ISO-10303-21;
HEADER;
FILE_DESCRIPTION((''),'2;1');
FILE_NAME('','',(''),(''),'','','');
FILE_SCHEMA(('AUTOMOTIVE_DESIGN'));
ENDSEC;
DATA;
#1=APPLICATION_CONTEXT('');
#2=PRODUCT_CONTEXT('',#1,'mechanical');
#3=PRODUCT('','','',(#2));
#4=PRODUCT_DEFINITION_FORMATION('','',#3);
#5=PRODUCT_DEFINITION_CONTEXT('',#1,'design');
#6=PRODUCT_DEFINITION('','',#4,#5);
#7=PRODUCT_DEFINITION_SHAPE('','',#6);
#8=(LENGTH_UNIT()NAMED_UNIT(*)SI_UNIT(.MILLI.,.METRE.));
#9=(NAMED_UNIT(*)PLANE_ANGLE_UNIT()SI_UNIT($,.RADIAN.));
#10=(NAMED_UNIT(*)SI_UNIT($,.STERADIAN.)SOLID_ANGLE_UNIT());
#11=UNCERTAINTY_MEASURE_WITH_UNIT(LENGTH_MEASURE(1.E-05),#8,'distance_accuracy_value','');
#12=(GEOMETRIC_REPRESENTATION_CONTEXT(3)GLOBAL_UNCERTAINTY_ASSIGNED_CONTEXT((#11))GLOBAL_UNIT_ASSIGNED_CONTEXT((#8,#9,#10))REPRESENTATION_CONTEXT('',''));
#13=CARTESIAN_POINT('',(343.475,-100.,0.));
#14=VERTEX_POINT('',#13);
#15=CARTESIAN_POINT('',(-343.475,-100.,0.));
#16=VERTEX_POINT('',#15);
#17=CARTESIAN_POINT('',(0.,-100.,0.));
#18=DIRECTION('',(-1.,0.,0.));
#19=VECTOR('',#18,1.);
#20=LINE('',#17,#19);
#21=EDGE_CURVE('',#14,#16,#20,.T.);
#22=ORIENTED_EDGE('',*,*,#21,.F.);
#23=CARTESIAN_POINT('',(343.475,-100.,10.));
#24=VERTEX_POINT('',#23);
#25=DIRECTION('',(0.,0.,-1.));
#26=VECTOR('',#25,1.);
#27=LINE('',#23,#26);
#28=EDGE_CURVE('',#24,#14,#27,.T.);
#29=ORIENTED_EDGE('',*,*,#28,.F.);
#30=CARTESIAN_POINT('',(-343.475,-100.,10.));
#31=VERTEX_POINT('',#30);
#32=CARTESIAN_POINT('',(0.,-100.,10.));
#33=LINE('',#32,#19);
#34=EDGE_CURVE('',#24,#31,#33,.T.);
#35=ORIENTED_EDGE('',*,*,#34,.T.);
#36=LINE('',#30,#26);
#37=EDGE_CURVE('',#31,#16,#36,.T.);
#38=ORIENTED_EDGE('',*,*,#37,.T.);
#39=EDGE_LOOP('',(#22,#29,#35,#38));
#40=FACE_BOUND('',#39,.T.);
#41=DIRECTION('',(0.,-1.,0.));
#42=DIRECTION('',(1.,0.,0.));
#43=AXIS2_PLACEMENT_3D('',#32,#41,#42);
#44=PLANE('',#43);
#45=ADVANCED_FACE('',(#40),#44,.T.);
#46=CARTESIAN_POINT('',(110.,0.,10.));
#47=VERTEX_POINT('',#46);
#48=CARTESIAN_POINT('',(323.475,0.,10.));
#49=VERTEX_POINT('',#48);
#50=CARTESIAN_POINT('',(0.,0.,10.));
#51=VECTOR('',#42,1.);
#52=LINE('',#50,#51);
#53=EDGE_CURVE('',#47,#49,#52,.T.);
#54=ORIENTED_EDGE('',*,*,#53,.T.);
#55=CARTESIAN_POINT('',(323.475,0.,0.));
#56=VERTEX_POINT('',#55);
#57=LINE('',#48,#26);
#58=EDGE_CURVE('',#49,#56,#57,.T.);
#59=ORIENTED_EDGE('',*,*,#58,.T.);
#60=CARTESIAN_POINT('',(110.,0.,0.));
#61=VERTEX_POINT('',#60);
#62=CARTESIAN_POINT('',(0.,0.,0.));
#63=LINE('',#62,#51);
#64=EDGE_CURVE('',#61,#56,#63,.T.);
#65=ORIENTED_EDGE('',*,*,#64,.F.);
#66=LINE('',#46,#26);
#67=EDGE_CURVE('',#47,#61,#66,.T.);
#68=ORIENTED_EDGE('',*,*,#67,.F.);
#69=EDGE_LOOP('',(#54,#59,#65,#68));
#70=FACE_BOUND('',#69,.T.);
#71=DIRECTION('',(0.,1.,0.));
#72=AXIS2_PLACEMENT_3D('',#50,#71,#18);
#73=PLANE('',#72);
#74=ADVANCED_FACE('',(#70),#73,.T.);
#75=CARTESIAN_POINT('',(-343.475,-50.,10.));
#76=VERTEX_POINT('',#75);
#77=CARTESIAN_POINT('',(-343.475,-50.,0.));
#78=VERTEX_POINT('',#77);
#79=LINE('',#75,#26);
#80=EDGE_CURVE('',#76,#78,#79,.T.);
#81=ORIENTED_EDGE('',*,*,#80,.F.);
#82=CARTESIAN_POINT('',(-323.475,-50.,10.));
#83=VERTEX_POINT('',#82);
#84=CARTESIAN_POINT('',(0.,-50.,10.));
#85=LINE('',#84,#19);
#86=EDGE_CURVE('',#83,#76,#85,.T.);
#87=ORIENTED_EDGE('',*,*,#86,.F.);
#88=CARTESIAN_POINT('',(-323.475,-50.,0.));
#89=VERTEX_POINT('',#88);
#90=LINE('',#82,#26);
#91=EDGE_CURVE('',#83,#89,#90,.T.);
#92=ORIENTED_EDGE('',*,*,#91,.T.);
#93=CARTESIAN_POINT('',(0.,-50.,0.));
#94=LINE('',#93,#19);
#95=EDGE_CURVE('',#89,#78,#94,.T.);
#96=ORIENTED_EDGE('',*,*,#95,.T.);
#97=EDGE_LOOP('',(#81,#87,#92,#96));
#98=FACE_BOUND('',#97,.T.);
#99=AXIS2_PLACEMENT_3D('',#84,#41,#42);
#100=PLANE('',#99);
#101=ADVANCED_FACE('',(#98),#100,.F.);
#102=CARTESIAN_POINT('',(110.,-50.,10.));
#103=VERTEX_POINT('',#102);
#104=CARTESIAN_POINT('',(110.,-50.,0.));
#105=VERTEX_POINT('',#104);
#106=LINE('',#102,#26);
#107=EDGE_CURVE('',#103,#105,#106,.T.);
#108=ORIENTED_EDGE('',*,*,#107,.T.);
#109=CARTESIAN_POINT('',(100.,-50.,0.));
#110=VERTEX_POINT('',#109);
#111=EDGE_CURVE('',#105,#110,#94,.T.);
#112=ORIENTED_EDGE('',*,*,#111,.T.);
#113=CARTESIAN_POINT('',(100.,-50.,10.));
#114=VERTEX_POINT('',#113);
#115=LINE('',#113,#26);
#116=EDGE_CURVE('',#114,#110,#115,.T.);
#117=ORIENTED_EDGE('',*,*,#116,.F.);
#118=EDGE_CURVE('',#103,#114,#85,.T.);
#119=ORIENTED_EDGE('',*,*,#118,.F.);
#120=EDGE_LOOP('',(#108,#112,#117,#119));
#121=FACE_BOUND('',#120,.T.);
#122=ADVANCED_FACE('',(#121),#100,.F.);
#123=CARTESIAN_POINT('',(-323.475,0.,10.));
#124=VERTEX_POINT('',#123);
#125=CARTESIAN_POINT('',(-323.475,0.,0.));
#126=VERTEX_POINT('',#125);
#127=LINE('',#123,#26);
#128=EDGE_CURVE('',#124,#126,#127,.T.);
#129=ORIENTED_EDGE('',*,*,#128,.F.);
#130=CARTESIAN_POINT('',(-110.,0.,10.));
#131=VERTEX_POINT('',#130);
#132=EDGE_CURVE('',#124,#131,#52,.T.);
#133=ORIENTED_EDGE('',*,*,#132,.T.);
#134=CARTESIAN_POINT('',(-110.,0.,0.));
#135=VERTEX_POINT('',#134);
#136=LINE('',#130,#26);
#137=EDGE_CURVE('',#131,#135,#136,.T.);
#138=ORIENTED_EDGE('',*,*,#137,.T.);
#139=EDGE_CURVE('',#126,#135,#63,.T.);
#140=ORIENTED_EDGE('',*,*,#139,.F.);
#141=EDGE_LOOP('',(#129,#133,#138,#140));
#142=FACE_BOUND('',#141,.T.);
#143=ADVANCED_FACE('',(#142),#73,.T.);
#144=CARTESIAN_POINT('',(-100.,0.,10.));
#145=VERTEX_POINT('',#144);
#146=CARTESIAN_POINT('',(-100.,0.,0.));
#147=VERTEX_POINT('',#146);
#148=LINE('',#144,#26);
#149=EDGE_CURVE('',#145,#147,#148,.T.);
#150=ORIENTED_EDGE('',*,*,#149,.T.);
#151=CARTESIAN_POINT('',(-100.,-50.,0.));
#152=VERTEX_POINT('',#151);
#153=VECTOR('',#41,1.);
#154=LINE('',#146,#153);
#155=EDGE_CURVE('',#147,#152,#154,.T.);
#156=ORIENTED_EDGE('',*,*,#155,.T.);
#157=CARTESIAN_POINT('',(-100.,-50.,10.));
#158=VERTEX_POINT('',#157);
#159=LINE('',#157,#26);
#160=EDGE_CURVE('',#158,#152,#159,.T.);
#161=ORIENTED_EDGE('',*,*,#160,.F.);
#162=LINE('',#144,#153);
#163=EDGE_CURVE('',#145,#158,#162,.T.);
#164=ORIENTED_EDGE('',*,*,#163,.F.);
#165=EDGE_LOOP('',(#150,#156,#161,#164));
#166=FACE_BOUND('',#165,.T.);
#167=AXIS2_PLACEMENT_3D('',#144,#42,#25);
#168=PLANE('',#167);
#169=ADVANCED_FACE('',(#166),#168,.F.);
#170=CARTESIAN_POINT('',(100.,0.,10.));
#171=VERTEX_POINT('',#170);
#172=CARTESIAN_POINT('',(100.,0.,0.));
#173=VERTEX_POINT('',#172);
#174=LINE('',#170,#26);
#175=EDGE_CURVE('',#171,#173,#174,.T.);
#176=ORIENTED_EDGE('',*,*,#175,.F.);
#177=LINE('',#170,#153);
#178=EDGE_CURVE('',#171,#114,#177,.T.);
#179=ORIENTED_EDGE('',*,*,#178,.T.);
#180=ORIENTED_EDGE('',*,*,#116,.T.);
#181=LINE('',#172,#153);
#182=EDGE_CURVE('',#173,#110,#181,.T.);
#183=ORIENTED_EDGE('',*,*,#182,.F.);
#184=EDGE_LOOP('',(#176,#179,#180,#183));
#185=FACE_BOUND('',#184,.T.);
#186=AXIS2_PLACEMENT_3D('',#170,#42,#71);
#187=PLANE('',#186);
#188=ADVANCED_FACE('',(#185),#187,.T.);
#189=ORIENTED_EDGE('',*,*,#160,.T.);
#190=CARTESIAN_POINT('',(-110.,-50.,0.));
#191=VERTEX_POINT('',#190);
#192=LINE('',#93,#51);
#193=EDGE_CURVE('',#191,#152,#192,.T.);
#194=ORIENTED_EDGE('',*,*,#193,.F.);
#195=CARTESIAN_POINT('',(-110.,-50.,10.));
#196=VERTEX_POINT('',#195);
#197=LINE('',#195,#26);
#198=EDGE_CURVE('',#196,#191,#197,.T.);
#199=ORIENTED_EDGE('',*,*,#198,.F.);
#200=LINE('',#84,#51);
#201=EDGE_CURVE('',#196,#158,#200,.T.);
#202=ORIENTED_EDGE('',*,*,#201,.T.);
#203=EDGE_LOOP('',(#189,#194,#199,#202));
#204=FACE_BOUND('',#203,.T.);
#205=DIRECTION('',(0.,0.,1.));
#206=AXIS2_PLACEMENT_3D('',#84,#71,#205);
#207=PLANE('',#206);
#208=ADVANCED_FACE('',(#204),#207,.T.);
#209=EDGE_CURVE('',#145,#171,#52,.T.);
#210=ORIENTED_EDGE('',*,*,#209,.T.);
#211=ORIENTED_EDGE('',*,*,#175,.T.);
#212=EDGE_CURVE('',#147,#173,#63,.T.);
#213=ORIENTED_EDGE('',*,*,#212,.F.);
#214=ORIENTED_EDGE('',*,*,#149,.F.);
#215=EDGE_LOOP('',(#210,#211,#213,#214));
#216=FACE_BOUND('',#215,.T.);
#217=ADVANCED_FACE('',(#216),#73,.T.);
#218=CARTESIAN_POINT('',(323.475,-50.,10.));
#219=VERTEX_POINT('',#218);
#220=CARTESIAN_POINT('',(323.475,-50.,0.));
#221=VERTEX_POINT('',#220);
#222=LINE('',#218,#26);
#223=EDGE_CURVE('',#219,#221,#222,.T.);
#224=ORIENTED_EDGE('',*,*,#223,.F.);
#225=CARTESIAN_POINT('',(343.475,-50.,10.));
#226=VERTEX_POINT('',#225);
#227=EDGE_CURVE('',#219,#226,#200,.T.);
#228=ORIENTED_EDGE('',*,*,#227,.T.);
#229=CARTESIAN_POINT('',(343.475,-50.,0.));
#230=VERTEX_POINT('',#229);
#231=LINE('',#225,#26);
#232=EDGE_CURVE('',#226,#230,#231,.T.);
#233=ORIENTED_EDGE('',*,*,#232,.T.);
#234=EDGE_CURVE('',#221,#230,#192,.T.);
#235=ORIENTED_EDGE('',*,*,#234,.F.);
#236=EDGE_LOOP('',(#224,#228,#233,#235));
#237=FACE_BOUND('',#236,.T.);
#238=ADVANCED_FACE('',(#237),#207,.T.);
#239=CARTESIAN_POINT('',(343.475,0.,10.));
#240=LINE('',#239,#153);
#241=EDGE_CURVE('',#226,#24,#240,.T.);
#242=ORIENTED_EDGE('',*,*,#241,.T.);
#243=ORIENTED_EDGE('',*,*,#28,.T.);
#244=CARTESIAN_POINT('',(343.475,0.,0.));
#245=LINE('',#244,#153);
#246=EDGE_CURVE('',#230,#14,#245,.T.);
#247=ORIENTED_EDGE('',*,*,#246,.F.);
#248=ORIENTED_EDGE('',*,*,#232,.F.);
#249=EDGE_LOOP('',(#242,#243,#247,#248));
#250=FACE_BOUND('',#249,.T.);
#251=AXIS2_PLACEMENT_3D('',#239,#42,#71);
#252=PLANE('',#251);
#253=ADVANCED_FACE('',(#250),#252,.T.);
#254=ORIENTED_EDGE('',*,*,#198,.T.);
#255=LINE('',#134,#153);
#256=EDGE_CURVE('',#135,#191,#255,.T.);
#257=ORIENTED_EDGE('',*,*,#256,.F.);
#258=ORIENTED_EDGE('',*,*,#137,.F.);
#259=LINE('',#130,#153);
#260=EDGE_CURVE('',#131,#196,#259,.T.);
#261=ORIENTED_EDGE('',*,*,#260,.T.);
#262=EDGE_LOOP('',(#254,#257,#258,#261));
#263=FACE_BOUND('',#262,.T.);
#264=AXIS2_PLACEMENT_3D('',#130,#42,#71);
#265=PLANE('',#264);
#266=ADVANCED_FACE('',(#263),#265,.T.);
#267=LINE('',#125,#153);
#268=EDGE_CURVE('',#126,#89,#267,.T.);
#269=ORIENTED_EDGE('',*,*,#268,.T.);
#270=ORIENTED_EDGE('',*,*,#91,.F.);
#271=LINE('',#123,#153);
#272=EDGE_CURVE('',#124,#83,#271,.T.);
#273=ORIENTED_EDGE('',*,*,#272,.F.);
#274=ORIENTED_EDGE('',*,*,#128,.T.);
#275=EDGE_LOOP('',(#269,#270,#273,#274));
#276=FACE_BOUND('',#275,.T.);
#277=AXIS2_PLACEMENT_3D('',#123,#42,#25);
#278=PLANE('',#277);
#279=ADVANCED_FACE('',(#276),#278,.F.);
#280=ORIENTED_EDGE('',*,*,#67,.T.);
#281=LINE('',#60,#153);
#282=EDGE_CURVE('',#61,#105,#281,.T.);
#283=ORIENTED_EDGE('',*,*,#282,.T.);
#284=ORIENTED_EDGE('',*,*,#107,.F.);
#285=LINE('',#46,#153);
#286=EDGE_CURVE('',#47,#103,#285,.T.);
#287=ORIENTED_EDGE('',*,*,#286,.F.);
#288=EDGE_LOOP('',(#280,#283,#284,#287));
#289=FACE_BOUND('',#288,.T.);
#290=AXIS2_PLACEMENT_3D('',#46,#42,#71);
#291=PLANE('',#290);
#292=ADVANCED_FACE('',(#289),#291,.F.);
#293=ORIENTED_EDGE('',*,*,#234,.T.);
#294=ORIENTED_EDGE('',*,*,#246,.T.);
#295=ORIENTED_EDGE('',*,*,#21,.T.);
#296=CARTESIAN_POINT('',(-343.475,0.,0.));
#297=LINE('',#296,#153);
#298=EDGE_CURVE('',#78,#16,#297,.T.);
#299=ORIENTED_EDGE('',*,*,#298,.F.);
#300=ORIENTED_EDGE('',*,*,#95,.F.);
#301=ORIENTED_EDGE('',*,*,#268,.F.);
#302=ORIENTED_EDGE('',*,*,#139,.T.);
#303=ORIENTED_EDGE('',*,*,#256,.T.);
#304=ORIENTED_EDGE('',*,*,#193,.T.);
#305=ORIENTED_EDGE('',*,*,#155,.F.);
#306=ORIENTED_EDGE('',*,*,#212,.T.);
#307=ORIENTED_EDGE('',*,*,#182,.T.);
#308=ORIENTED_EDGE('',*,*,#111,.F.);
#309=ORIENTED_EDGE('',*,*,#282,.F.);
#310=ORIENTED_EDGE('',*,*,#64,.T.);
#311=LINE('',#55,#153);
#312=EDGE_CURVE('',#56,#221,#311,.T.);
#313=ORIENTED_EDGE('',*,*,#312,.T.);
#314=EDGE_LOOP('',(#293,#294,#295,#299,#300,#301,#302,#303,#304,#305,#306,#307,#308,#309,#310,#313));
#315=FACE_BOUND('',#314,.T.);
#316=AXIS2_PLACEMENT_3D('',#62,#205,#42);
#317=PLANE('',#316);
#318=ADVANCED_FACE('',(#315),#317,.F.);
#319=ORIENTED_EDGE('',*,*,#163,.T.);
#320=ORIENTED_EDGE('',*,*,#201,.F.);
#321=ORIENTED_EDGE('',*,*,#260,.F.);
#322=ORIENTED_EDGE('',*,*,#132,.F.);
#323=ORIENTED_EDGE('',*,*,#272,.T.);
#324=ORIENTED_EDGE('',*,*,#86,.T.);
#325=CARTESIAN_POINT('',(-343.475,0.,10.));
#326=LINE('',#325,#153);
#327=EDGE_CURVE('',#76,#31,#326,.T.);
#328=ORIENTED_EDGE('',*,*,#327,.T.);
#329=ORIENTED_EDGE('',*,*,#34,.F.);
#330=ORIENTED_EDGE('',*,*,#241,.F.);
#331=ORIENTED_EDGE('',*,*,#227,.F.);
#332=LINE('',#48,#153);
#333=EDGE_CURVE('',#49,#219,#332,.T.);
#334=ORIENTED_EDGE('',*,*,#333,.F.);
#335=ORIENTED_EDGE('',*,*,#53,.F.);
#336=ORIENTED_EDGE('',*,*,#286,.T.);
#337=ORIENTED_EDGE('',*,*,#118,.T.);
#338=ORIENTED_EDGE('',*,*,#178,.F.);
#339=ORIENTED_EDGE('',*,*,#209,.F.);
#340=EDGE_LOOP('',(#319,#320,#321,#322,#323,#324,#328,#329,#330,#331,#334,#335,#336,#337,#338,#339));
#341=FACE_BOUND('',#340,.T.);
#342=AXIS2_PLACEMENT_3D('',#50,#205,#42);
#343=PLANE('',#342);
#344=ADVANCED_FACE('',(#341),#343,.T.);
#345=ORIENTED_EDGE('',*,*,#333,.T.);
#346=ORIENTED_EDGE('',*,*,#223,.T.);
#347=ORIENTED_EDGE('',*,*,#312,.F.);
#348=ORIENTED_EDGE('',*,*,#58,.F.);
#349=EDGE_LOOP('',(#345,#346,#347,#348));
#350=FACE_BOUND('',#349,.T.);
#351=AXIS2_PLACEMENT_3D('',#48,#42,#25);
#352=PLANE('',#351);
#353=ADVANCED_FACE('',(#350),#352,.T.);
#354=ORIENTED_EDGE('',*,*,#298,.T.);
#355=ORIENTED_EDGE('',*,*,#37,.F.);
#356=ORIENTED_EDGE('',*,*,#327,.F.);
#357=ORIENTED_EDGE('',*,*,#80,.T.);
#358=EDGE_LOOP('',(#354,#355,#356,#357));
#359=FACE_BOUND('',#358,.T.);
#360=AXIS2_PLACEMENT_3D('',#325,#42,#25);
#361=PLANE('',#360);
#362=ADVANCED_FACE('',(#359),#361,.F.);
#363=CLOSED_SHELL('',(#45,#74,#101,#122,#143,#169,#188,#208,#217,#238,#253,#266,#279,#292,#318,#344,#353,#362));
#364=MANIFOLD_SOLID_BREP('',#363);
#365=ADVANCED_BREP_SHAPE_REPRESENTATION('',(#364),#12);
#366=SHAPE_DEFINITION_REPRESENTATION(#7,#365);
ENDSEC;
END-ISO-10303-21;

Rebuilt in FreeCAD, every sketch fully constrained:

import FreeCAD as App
import Part
import Sketcher

V = App.Vector
Q = App.Units.Quantity

doc = App.newDocument("Part")
body = doc.addObject("PartDesign::Body", "Body")

sketch1 = doc.addObject("Sketcher::SketchObject", "Sketch")
body.addObject(sketch1)
sketch1.AttachmentSupport = (doc.XY_Plane, [""])
sketch1.MapMode = "FlatFace"
sketch1.addGeometry([
    Part.LineSegment(V(-110, 0, 0), V(-323.475, 0, 0)),
    Part.LineSegment(V(-323.475, 0, 0), V(-323.475, -50, 0)),
    Part.LineSegment(V(-323.475, -50, 0), V(-343.475, -50, 0)),
    Part.LineSegment(V(-343.475, -50, 0), V(-343.475, -100, 0)),
    Part.LineSegment(V(-343.475, -100, 0), V(343.475, -100, 0)),
    Part.LineSegment(V(343.475, -100, 0), V(343.475, -50, 0)),
    Part.LineSegment(V(343.475, -50, 0), V(323.475, -50, 0)),
    Part.LineSegment(V(323.475, -50, 0), V(323.475, 0, 0)),
    Part.LineSegment(V(323.475, 0, 0), V(110, 0, 0)),
    Part.LineSegment(V(110, 0, 0), V(110, -50, 0)),
    Part.LineSegment(V(110, -50, 0), V(100, -50, 0)),
    Part.LineSegment(V(100, -50, 0), V(100, 0, 0)),
    Part.LineSegment(V(100, 0, 0), V(-100, 0, 0)),
    Part.LineSegment(V(-100, 0, 0), V(-100, -50, 0)),
    Part.LineSegment(V(-100, -50, 0), V(-110, -50, 0)),
    Part.LineSegment(V(-110, -50, 0), V(-110, 0, 0)),
], False)
sketch1.addConstraint([
    Sketcher.Constraint("Coincident", 0, 2, 1, 1),
    Sketcher.Constraint("Coincident", 1, 2, 2, 1),
    Sketcher.Constraint("Coincident", 2, 2, 3, 1),
    Sketcher.Constraint("Coincident", 3, 2, 4, 1),
    Sketcher.Constraint("Coincident", 4, 2, 5, 1),
    Sketcher.Constraint("Coincident", 5, 2, 6, 1),
    Sketcher.Constraint("Coincident", 6, 2, 7, 1),
    Sketcher.Constraint("Coincident", 7, 2, 8, 1),
    Sketcher.Constraint("Coincident", 8, 2, 9, 1),
    Sketcher.Constraint("Coincident", 9, 2, 10, 1),
    Sketcher.Constraint("Coincident", 10, 2, 11, 1),
    Sketcher.Constraint("Coincident", 11, 2, 12, 1),
    Sketcher.Constraint("Coincident", 12, 2, 13, 1),
    Sketcher.Constraint("Coincident", 13, 2, 14, 1),
    Sketcher.Constraint("Coincident", 14, 2, 15, 1),
    Sketcher.Constraint("Coincident", 15, 2, 0, 1),
    Sketcher.Constraint("Horizontal", 0),
    Sketcher.Constraint("Vertical", 1),
    Sketcher.Constraint("Horizontal", 2),
    Sketcher.Constraint("Vertical", 3),
    Sketcher.Constraint("Horizontal", 4),
    Sketcher.Constraint("Vertical", 5),
    Sketcher.Constraint("Horizontal", 6),
    Sketcher.Constraint("Vertical", 7),
    Sketcher.Constraint("Horizontal", 8),
    Sketcher.Constraint("Vertical", 9),
    Sketcher.Constraint("Horizontal", 10),
    Sketcher.Constraint("Vertical", 11),
    Sketcher.Constraint("Horizontal", 12),
    Sketcher.Constraint("Vertical", 13),
    Sketcher.Constraint("Horizontal", 14),
    Sketcher.Constraint("Vertical", 15),
    Sketcher.Constraint("Symmetric", 0, 2, 7, 2, -1, 1),
    Sketcher.Constraint("Symmetric", 11, 2, 12, 2, -1, 1),
    Sketcher.Constraint("Symmetric", 2, 2, 5, 2, -2),
    Sketcher.Constraint("Symmetric", 9, 2, 14, 2, -2),
    Sketcher.Constraint("PointOnObject", 0, 2, -1),
    Sketcher.Constraint("Horizontal", 6, 2, 9, 2),
    Sketcher.Constraint("Equal", 1, 3),
    Sketcher.Constraint("DistanceX", 2, 2, 2, 1, Q("20 mm")),
    Sketcher.Constraint("DistanceX", 10, 2, 10, 1, Q("10 mm")),
    Sketcher.Constraint("DistanceX", 12, 2, 12, 1, Q("200 mm")),
    Sketcher.Constraint("DistanceY", 1, 2, 1, 1, Q("50 mm")),
    Sketcher.Constraint("DistanceX", 4, 1, 4, 2, Q("686.95 mm")),
])
pad1 = doc.addObject("PartDesign::Pad", "Pad")
body.addObject(pad1)
pad1.Profile = sketch1
pad1.Length = 10

doc.recompute()
